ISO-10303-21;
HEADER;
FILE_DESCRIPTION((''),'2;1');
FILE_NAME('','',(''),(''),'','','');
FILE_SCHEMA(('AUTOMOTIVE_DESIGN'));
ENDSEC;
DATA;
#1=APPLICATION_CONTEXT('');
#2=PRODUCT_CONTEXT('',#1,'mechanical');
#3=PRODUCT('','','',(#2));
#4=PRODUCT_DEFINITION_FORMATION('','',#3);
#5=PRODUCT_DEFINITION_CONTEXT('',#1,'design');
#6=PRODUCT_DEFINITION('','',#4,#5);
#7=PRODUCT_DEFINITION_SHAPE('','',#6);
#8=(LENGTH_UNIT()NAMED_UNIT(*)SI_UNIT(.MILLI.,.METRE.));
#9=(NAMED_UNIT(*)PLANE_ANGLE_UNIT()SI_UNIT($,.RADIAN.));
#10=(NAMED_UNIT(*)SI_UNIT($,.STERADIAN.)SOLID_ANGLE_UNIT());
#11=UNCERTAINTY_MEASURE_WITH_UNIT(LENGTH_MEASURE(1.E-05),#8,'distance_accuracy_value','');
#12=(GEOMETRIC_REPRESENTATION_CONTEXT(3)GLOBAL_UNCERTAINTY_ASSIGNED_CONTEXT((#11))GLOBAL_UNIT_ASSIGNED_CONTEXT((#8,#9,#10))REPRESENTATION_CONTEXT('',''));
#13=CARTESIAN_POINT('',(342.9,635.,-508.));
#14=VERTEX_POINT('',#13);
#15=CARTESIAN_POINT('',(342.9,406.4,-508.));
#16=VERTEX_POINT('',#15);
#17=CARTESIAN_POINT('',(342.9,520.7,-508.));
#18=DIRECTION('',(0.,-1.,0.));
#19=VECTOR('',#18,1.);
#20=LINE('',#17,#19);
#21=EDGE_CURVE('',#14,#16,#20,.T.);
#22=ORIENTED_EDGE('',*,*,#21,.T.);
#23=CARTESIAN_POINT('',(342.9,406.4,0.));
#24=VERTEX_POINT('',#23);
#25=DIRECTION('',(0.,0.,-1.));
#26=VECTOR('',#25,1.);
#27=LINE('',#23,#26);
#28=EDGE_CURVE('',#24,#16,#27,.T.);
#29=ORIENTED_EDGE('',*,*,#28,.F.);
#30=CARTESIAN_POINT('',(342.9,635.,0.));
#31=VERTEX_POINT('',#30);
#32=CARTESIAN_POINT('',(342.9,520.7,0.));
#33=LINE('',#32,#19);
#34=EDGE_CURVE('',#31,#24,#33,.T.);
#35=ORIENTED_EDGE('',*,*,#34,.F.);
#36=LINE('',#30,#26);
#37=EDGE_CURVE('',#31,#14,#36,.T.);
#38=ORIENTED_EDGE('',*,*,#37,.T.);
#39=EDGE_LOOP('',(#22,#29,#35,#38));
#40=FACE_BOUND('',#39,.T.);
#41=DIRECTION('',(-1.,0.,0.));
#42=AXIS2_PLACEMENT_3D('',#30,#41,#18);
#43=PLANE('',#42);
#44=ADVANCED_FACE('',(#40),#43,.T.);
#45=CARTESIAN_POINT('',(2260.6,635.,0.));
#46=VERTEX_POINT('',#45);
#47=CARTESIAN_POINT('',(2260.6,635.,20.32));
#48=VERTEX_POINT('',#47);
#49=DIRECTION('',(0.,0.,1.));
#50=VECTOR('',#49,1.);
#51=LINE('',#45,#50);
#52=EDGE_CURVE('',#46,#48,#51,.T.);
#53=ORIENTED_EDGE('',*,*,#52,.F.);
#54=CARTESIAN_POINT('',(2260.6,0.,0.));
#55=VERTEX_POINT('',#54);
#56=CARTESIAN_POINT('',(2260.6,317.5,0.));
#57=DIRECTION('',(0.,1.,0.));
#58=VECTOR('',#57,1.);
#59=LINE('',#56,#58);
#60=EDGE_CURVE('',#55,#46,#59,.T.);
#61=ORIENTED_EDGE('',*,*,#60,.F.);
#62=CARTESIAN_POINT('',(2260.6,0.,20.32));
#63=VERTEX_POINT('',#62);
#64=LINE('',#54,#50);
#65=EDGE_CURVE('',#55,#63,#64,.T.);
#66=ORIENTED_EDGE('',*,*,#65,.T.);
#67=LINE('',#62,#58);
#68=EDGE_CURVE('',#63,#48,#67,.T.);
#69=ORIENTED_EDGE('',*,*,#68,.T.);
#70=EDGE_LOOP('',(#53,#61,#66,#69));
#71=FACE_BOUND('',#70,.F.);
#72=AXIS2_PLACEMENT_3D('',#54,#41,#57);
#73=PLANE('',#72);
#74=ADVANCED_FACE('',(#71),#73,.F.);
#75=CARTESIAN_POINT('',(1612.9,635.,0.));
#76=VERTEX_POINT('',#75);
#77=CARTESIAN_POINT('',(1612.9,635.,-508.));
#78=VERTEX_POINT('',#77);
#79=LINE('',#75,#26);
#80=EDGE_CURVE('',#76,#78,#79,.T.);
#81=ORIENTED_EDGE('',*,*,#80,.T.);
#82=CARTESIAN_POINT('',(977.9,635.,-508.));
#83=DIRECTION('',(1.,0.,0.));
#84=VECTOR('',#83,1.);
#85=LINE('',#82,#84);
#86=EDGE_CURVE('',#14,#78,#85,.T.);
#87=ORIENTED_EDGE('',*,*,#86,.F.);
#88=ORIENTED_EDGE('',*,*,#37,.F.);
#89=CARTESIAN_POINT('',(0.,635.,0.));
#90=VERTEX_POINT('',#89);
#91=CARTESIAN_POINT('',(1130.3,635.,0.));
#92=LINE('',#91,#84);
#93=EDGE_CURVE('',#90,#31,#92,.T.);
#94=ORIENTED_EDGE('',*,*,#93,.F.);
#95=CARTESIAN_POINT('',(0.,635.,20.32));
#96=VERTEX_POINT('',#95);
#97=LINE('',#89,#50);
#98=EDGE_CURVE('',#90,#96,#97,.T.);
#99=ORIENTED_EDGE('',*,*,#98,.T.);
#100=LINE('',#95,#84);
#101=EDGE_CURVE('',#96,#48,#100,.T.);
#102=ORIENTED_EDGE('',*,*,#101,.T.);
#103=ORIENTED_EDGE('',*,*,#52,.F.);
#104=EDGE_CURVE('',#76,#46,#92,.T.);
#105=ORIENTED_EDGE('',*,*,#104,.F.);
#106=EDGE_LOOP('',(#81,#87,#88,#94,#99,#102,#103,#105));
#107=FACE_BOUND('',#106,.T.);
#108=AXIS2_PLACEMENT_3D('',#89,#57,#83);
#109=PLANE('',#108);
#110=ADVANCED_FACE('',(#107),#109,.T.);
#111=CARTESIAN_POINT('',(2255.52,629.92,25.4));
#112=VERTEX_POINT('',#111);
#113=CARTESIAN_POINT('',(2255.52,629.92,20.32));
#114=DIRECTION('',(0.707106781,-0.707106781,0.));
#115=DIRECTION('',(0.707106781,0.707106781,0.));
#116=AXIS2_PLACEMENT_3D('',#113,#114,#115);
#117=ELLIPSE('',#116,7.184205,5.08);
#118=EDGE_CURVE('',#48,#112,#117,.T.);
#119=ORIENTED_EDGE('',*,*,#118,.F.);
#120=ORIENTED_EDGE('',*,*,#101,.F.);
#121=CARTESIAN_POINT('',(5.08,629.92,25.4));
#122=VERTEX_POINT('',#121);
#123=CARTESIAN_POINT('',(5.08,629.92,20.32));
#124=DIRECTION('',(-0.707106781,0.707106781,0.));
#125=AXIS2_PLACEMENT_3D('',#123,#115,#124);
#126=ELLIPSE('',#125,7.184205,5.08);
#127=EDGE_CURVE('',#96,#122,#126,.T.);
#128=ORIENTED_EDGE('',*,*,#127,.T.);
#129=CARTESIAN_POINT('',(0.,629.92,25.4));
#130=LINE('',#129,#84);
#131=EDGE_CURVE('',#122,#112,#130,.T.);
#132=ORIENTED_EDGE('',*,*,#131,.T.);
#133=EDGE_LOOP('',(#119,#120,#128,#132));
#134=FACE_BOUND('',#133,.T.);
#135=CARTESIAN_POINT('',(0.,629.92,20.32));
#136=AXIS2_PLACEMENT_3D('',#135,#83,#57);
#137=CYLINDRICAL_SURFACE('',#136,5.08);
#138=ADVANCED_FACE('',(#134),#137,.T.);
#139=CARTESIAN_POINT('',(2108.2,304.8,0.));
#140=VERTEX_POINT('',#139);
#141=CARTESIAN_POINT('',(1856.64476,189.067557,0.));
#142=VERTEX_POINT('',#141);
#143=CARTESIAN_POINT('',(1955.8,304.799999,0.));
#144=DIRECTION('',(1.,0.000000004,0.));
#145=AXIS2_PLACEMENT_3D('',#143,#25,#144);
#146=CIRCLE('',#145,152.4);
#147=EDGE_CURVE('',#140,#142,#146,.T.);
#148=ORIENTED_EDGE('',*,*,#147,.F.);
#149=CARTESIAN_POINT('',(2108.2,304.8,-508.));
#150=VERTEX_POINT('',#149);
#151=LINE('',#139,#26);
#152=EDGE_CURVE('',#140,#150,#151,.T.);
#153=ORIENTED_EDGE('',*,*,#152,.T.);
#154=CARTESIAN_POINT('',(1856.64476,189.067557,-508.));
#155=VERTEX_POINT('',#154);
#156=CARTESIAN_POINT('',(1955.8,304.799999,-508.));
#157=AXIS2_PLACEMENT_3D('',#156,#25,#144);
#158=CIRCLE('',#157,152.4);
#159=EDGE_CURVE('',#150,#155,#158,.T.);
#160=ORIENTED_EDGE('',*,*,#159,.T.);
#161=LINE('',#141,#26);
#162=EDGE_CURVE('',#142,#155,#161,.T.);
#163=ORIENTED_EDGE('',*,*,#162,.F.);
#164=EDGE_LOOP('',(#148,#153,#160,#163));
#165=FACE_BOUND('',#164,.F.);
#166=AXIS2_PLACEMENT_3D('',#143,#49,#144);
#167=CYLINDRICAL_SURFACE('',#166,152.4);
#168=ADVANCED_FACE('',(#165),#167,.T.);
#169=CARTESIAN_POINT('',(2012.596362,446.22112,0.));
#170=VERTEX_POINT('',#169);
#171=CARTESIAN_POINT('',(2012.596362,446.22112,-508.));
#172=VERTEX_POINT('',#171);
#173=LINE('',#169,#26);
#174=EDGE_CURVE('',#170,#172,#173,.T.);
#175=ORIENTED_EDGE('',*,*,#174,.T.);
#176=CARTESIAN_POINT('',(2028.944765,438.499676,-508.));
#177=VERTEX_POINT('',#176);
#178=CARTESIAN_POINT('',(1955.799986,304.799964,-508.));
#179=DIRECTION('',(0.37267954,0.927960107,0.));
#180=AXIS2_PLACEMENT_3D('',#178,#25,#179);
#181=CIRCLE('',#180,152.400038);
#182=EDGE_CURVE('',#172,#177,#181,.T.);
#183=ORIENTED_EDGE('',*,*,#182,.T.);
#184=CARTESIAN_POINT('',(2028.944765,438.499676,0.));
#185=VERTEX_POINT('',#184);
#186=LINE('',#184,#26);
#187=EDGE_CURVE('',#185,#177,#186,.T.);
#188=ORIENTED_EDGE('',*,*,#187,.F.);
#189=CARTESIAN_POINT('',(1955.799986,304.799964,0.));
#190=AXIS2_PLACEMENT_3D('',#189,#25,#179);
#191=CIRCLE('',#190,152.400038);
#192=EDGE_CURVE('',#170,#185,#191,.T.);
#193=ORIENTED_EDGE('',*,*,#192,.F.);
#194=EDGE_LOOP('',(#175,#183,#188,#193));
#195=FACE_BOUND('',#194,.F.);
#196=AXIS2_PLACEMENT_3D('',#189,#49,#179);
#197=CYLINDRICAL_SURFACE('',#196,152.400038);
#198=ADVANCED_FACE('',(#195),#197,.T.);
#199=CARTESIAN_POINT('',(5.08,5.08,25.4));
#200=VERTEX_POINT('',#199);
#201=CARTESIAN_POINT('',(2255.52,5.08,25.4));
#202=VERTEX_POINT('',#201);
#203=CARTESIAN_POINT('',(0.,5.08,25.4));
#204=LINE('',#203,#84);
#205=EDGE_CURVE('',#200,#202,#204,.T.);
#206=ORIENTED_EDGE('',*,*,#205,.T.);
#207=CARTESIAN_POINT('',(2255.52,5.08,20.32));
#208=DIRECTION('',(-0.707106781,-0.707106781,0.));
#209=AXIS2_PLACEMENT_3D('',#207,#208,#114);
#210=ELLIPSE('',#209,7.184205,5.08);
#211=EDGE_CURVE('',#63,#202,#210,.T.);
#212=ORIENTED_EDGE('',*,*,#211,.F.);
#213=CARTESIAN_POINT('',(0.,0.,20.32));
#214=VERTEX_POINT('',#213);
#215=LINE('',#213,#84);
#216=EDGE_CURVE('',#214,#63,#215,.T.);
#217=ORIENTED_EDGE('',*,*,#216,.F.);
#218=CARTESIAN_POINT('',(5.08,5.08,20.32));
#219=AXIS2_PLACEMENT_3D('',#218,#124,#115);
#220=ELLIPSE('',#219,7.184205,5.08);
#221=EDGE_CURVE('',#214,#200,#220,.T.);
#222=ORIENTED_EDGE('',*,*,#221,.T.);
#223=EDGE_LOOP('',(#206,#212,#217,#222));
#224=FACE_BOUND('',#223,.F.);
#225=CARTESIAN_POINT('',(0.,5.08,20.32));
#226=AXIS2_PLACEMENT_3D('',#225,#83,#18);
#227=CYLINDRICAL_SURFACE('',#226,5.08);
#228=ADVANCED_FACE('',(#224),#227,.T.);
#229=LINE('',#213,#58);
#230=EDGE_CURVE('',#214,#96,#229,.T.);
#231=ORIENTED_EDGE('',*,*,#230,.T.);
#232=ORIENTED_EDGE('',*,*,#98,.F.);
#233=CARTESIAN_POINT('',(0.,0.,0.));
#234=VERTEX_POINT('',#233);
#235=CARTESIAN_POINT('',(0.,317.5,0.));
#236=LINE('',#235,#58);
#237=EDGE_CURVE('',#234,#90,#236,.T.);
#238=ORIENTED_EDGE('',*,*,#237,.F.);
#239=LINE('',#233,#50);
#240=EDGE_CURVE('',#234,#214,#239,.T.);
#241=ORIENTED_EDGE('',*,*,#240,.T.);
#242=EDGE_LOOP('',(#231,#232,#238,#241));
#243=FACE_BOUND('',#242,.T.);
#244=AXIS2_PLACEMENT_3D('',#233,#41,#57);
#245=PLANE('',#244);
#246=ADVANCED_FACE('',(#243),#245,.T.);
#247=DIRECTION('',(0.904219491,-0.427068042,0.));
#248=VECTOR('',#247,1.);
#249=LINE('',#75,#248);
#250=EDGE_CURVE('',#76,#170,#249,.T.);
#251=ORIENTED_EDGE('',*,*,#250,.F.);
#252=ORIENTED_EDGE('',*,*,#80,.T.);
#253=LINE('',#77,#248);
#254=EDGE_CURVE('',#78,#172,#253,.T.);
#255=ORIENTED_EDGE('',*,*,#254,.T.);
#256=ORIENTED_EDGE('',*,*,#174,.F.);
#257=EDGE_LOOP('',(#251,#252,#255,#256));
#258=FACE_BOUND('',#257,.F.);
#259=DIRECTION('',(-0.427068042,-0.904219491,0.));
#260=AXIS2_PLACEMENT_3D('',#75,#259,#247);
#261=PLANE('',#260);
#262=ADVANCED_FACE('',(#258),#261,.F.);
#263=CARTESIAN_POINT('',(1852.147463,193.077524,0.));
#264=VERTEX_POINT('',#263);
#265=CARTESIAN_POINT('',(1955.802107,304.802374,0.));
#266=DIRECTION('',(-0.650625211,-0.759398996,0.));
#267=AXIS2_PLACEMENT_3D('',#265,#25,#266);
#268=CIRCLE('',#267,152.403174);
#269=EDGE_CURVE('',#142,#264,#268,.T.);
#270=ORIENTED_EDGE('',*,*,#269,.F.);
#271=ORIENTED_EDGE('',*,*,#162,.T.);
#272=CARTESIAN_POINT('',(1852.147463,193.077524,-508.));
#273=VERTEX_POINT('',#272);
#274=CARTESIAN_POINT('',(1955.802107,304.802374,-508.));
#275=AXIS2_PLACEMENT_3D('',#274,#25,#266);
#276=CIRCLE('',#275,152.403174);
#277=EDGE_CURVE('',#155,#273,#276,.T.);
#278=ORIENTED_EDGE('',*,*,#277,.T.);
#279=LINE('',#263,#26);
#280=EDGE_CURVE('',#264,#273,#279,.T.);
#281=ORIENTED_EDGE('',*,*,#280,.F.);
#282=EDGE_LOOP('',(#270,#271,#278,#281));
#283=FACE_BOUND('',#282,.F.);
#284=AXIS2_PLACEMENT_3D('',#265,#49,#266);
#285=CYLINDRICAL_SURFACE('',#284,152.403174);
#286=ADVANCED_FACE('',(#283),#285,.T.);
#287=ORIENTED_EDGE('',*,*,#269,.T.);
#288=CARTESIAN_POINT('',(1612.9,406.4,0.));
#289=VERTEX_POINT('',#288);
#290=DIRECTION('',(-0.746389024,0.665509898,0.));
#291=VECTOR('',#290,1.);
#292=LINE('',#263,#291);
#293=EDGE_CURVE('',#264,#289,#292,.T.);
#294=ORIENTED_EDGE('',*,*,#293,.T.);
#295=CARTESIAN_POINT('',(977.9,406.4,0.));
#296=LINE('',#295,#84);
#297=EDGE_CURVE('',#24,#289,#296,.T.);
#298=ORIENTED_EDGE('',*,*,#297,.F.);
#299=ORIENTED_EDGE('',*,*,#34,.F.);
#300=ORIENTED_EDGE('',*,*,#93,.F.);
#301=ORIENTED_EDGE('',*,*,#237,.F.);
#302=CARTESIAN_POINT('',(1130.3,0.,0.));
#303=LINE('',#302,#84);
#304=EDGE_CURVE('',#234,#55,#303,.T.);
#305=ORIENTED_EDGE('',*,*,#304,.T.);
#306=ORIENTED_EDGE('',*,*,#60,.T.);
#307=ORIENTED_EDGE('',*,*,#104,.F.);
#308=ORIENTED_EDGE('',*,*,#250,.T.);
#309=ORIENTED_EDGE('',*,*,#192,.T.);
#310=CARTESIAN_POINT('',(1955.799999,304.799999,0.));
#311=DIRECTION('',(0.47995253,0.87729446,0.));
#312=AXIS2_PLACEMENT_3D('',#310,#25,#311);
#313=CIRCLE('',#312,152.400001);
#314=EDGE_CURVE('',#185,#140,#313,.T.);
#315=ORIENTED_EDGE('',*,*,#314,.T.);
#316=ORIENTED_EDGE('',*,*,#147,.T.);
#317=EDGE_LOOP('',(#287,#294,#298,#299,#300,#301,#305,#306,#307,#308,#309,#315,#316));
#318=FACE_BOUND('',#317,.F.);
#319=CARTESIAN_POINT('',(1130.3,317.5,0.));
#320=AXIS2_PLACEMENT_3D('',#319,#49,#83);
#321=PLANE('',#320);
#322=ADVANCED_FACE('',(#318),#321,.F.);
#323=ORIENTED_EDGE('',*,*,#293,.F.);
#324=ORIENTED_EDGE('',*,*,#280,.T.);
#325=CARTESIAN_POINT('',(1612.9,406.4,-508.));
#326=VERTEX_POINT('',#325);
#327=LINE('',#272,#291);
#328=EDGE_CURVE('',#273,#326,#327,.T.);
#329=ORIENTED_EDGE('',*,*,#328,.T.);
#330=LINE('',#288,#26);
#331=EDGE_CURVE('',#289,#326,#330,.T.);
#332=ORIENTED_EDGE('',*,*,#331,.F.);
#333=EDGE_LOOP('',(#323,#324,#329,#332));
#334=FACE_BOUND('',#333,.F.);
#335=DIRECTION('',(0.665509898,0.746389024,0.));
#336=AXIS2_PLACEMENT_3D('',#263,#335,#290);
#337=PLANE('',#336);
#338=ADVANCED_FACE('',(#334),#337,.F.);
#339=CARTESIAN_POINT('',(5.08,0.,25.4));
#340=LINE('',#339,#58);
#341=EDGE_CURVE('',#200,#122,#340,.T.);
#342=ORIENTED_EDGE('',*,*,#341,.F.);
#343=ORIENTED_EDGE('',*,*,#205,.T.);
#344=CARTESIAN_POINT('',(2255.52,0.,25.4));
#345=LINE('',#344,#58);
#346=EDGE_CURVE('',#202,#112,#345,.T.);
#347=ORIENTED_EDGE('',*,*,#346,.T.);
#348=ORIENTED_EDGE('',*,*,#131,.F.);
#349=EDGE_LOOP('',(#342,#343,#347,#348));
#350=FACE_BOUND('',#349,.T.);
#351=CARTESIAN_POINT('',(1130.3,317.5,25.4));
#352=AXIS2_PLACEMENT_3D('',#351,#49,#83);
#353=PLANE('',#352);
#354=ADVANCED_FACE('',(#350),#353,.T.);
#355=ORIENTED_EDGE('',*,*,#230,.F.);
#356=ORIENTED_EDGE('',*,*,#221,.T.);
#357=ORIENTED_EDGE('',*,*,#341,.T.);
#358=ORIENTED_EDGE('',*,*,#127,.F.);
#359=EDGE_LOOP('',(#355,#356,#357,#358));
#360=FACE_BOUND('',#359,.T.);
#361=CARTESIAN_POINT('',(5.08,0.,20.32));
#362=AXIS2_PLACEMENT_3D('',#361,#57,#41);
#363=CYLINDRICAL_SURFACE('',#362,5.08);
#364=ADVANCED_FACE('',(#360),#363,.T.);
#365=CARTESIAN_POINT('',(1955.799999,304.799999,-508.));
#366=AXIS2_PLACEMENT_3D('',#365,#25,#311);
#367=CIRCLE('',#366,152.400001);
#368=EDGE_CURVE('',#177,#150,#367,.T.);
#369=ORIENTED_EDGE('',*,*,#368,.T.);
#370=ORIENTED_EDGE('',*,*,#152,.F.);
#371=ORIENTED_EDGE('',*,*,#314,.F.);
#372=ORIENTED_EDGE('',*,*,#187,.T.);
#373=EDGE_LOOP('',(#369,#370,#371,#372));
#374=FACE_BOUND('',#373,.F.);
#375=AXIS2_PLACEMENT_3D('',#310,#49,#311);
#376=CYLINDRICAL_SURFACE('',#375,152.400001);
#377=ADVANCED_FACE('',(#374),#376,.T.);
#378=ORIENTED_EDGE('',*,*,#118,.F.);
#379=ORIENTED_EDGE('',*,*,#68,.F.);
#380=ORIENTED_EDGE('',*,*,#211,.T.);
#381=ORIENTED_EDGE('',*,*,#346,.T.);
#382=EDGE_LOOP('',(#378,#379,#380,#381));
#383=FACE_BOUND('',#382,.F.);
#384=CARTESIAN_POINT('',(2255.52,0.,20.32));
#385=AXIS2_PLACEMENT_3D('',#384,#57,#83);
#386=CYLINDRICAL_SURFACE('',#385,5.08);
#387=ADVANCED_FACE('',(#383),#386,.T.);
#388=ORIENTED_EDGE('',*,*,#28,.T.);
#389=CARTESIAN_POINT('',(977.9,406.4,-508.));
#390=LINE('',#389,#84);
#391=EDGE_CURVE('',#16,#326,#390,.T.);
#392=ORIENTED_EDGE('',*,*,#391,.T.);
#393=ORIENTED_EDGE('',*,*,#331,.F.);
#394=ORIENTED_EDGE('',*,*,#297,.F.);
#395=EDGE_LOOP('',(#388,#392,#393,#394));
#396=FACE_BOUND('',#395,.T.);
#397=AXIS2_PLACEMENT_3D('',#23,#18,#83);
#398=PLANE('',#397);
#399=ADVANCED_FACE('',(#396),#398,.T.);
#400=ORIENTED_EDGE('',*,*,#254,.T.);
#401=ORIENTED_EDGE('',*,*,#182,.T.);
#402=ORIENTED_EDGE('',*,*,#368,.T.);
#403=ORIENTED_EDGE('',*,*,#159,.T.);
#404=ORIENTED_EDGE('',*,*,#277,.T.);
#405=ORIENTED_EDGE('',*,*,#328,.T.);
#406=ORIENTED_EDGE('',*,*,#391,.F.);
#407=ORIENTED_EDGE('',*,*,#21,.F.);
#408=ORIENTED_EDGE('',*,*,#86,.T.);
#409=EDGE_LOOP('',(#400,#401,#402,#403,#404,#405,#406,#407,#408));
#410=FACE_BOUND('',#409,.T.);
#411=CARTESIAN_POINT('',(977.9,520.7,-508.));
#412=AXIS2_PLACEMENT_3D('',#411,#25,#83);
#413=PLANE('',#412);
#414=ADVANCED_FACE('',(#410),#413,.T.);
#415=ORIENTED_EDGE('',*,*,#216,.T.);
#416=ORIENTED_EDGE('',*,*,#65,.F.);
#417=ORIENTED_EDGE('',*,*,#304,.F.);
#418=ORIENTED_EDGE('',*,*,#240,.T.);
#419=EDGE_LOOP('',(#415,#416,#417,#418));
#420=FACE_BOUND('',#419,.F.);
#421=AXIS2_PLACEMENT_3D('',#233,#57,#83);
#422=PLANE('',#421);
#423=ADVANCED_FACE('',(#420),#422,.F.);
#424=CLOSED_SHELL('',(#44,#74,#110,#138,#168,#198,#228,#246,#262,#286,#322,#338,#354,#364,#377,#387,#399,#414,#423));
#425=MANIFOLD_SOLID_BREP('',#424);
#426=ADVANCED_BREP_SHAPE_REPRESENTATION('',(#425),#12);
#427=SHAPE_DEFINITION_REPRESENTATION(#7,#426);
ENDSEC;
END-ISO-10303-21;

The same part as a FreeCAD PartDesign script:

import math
import FreeCAD as App
import Part
import Sketcher
from FreeCAD import Vector
Q = App.Units.Quantity


def edges_at(feature, points):
    """Names of the edges that pass closest to the given points."""
    edges = feature.Shape.Edges
    near = lambda p: min(range(len(edges)), key=lambda i: edges[i].distToShape(Part.Vertex(*p))[0])
    return sorted({f"Edge{near(p) + 1}" for p in points})


def add_polygon(sketch, points):
    """Adds a closed chain of lines whose ends are joined by coincident constraints."""
    first, n = sketch.GeometryCount, len(points)
    for a, b in zip(points, points[1:] + points[:1]):
        sketch.addGeometry(Part.LineSegment(App.Vector(*a, 0), App.Vector(*b, 0)), False)
    for i in range(n):
        sketch.addConstraint(Sketcher.Constraint("Coincident", first + i, 2, first + (i + 1) % n, 1))

doc = App.newDocument("Part")
body = doc.addObject("PartDesign::Body", "Body")

sketch1 = body.newObject("Sketcher::SketchObject", "Sketch")
sketch1.AttachmentSupport = (doc.getObject("XY_Plane"), [""])
sketch1.MapMode = "FlatFace"
add_polygon(sketch1, [(0, 635), (0, 0), (2261, 0), (2261, 635)])
sketch1.addConstraint([
    Sketcher.Constraint("Vertical", 0),
    Sketcher.Constraint("Horizontal", 1),
    Sketcher.Constraint("Vertical", 2),
    Sketcher.Constraint("Horizontal", 3),
    Sketcher.Constraint("Coincident", 0, 2, -1, 1),
    Sketcher.Constraint("DistanceX", 1, 1, 1, 2, Q("89 in")),
    Sketcher.Constraint("DistanceY", 0, 2, 0, 1, Q("25 in")),
])
pad1 = body.newObject("PartDesign::Pad", "Pad")
pad1.Profile = sketch1
pad1.Length = Q("1 in")
doc.recompute()

fillet = body.newObject("PartDesign::Fillet", "Fillet")
fillet.Base = (pad1, edges_at(pad1, [
    (0, 317.5, 25.4),
    (1130.3, 0, 25.4),
    (2260.6, 317.5, 25.4),
    (1130.3, 635, 25.4),
]))
fillet.Radius = Q("0.2 in")

sketch2 = body.newObject("Sketcher::SketchObject", "Sketch001")
sketch2.AttachmentSupport = (doc.getObject("XY_Plane"), [""])
sketch2.MapMode = "FlatFace"
sketch2.addGeometry([
    Part.LineSegment(Vector(342.9, 406.4, 0), Vector(342.9, 635, 0)),
    Part.LineSegment(Vector(342.9, 635, 0), Vector(1612.9, 635, 0)),
    Part.LineSegment(Vector(1612.9, 635, 0), Vector(2012.596362, 446.22112, 0)),
    Part.ArcOfCircle(Part.Circle(Vector(1955.799986, 304.799964, 0), Vector(0, 0, 1), 152.400038), math.radians(61.3177), math.radians(68.119033)),
    Part.ArcOfCircle(Part.Circle(Vector(1955.799999, 304.799999, 0), Vector(0, 0, 1), 152.400001), math.radians(0), math.radians(61.317698)),
    Part.ArcOfCircle(Part.Circle(Vector(1955.8, 304.799999, 0), Vector(0, 0, 1), 152.4), math.radians(-130.588736), math.radians(0)),
    Part.ArcOfCircle(Part.Circle(Vector(1955.802107, 304.802374, 0), Vector(0, 0, 1), 152.403174), math.radians(-132.854148), math.radians(-130.588757)),
    Part.LineSegment(Vector(1852.147463, 193.077524, 0), Vector(1612.9, 406.4, 0)),
    Part.LineSegment(Vector(1612.9, 406.4, 0), Vector(342.9, 406.4, 0)),
], False)
sketch2.addConstraint([
    Sketcher.Constraint("Coincident", 0, 2, 1, 1),
    Sketcher.Constraint("Coincident", 1, 2, 2, 1),
    Sketcher.Constraint("Coincident", 2, 2, 3, 2),
    Sketcher.Constraint("Coincident", 3, 1, 4, 2),
    Sketcher.Constraint("Coincident", 4, 1, 5, 2),
    Sketcher.Constraint("Coincident", 5, 1, 6, 2),
    Sketcher.Constraint("Coincident", 6, 1, 7, 1),
    Sketcher.Constraint("Coincident", 7, 2, 8, 1),
    Sketcher.Constraint("Coincident", 8, 2, 0, 1),
    Sketcher.Constraint("Vertical", 0),
    Sketcher.Constraint("Horizontal", 1),
    Sketcher.Constraint("Horizontal", 8),
    Sketcher.Constraint("Coincident", 5, 3, 4, 3),
    Sketcher.Constraint("Radius", 4, Q("6 in")),
    Sketcher.Constraint("DistanceX", 1, 1, 1, 2, Q("50 in")),
    Sketcher.Constraint("DistanceX", 8, 2, 8, 1, Q("50 in")),
    Sketcher.Constraint("DistanceY", 0, 1, 0, 2, Q("9 in")),
    Sketcher.Constraint("DistanceX", -1, 1, 4, 3, Q("77 in")),
    Sketcher.Constraint("DistanceY", -1, 1, 4, 3, Q("12 in")),
    Sketcher.Constraint("DistanceY", -1, 1, 0, 2, Q("25 in")),
    Sketcher.Constraint("DistanceY", -1, 1, 4, 1, Q("12 in")),
    Sketcher.Constraint("DistanceX", -1, 1, 0, 2, Q("13.5 in")),
    Sketcher.Constraint("Radius", 3, 152.400038),
    Sketcher.Constraint("Radius", 6, 152.403174),
    Sketcher.Constraint("Distance", 7, 320.5399),
    Sketcher.Constraint("DistanceY", 6, 3, 3, 1, 133.697302),
    Sketcher.Constraint("DistanceX", -1, 1, 2, 2, 2012.596362),
    Sketcher.Constraint("DistanceY", -1, 1, 2, 2, 446.22112),
    Sketcher.Constraint("DistanceX", -1, 1, 5, 1, 1856.64476),
    Sketcher.Constraint("DistanceX", 4, 3, 6, 3, 0.002108),
])
pad2 = body.newObject("PartDesign::Pad", "Pad001")
pad2.Profile = sketch2
pad2.Length = Q("20 in")
pad2.Reversed = True

doc.recompute()
